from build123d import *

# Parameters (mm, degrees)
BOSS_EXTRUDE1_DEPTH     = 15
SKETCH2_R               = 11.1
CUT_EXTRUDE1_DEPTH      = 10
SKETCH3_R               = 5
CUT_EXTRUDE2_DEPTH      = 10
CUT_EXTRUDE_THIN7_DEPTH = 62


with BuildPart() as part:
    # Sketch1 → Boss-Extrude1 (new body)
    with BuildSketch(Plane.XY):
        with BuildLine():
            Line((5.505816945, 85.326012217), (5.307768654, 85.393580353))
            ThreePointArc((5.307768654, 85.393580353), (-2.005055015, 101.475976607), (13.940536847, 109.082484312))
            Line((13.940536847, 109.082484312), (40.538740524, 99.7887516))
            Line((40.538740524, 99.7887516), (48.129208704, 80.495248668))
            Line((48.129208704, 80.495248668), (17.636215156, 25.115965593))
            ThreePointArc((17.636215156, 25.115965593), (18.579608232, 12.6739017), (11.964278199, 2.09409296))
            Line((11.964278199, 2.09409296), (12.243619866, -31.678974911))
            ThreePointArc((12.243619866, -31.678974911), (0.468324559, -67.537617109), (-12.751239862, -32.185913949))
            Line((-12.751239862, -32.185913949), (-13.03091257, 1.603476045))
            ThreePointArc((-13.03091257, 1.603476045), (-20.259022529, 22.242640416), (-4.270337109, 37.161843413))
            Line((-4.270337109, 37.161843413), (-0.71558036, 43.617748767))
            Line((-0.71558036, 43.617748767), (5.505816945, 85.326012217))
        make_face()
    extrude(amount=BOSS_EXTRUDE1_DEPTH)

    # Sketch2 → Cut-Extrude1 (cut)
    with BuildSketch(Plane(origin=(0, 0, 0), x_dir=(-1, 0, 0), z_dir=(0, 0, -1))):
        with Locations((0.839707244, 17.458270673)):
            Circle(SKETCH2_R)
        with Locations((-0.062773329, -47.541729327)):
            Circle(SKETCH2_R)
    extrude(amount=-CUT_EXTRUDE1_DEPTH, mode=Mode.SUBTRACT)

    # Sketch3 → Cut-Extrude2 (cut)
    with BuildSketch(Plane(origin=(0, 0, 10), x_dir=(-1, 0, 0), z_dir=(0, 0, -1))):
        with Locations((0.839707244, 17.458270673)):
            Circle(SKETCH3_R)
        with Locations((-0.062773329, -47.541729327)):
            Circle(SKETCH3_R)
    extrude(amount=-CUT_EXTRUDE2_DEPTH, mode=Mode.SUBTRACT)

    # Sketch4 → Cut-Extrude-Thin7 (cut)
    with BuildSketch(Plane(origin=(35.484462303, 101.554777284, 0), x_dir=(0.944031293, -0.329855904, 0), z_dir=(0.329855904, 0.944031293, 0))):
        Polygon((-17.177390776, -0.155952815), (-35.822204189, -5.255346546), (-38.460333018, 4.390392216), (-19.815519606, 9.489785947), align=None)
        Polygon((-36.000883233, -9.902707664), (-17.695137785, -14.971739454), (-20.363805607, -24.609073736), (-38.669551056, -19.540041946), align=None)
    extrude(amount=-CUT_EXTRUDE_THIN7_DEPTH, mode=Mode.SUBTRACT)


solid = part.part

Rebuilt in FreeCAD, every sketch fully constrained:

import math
import FreeCAD as App
import Part
import Sketcher
from FreeCAD import Vector
Q = App.Units.Quantity


def add_polygon(sketch, points):
    """Adds a closed chain of lines whose ends are joined by coincident constraints."""
    first, n = sketch.GeometryCount, len(points)
    for a, b in zip(points, points[1:] + points[:1]):
        sketch.addGeometry(Part.LineSegment(App.Vector(*a, 0), App.Vector(*b, 0)), False)
    for i in range(n):
        sketch.addConstraint(Sketcher.Constraint("Coincident", first + i, 2, first + (i + 1) % n, 1))

doc = App.newDocument("Part")
body = doc.addObject("PartDesign::Body", "Body")

# Sketch on XY plane
sketch1 = body.newObject("Sketcher::SketchObject", "Sketch")
sketch1.AttachmentSupport = (doc.getObject("XY_Plane"), [""])
sketch1.MapMode = "FlatFace"
sketch1.addGeometry(Part.LineSegment(Vector(5.31, 85.39, 0), Vector(5.51, 85.33, 0)), False)
sketch1.addGeometry(Part.LineSegment(Vector(5.51, 85.33, 0), Vector(-0.72, 43.62, 0)), False)
sketch1.addGeometry(Part.LineSegment(Vector(-0.72, 43.62, 0), Vector(-4.27, 37.16, 0)), False)
sketch1.addGeometry(Part.ArcOfCircle(Part.Circle(Vector(-0.84, 17.46, 0), Vector(0, 0, 1), 20), math.radians(100), math.radians(232)), False)
sketch1.addGeometry(Part.LineSegment(Vector(-13.03, 1.6, 0), Vector(-12.75, -32.19, 0)), False)
sketch1.addGeometry(Part.ArcOfCircle(Part.Circle(Vector(0.06, -47.54, 0), Vector(0, 0, 1), 20), math.radians(130), math.radians(412)), False)
sketch1.addGeometry(Part.LineSegment(Vector(12.24, -31.68, 0), Vector(11.96, 2.09, 0)), False)
sketch1.addGeometry(Part.ArcOfCircle(Part.Circle(Vector(-0.84, 17.46, 0), Vector(0, 0, 1), 20), math.radians(-50), math.radians(23)), False)
sketch1.addGeometry(Part.LineSegment(Vector(17.64, 25.12, 0), Vector(48.13, 80.5, 0)), False)
sketch1.addGeometry(Part.LineSegment(Vector(48.13, 80.5, 0), Vector(40.54, 99.79, 0)), False)
sketch1.addGeometry(Part.LineSegment(Vector(40.54, 99.79, 0), Vector(13.94, 109.08, 0)), False)
sketch1.addGeometry(Part.ArcOfCircle(Part.Circle(Vector(9.84, 97.16, 0), Vector(0, 0, 1), 12.61), math.radians(71), math.radians(249)), False)
sketch1.addConstraint(Sketcher.Constraint("Coincident", 0, 2, 1, 1))
sketch1.addConstraint(Sketcher.Constraint("Coincident", 1, 2, 2, 1))
sketch1.addConstraint(Sketcher.Constraint("Coincident", 2, 2, 3, 1))
sketch1.addConstraint(Sketcher.Constraint("Coincident", 3, 2, 4, 1))
sketch1.addConstraint(Sketcher.Constraint("Coincident", 4, 2, 5, 1))
sketch1.addConstraint(Sketcher.Constraint("Coincident", 5, 2, 6, 1))
sketch1.addConstraint(Sketcher.Constraint("Coincident", 6, 2, 7, 1))
sketch1.addConstraint(Sketcher.Constraint("Coincident", 7, 2, 8, 1))
sketch1.addConstraint(Sketcher.Constraint("Coincident", 8, 2, 9, 1))
sketch1.addConstraint(Sketcher.Constraint("Coincident", 9, 2, 10, 1))
sketch1.addConstraint(Sketcher.Constraint("Coincident", 10, 2, 11, 1))
sketch1.addConstraint(Sketcher.Constraint("Coincident", 11, 2, 0, 1))
sketch1.addConstraint(Sketcher.Constraint("Coincident", 7, 3, 3, 3))
sketch1.addConstraint(Sketcher.Constraint("Equal", 3, 5))
sketch1.addConstraint(Sketcher.Constraint("Equal", 5, 7))
sketch1.addConstraint(Sketcher.Constraint("Parallel", 2, 8))
sketch1.addConstraint(Sketcher.Constraint("Radius", 3, Q("20 mm")))
sketch1.addConstraint(Sketcher.Constraint("DistanceY", 5, 3, 3, 3, Q("65 mm")))
sketch1.addConstraint(Sketcher.Constraint("Radius", 11, Q("12.608556 mm")))
sketch1.addConstraint(Sketcher.Constraint("DistanceY", 1, 2, 8, 2, Q("36.8775 mm")))
sketch1.addConstraint(Sketcher.Constraint("Distance", 2, Q("7.369872 mm")))
sketch1.addConstraint(Sketcher.Constraint("Distance", 8, Q("63.219361 mm")))
sketch1.addConstraint(Sketcher.Constraint("Distance", 9, Q("20.732932 mm")))
sketch1.addConstraint(Sketcher.Constraint("Distance", 10, Q("28.175129 mm")))
sketch1.addConstraint(Sketcher.Constraint("DistanceY", -1, 1, 3, 3, Q("17.458271 mm")))
sketch1.addConstraint(Sketcher.Constraint("DistanceX", -1, 1, 11, 3, Q("9.841389 mm")))
sketch1.addConstraint(Sketcher.Constraint("DistanceX", 1, 2, -1, 1, Q("0.71558 mm")))
sketch1.addConstraint(Sketcher.Constraint("DistanceY", -1, 1, 1, 2, Q("43.617749 mm")))
sketch1.addConstraint(Sketcher.Constraint("DistanceX", 4, 2, -1, 1, Q("12.75124 mm")))
sketch1.addConstraint(Sketcher.Constraint("DistanceX", -1, 1, 5, 2, Q("12.24362 mm")))
sketch1.addConstraint(Sketcher.Constraint("DistanceX", -1, 1, 6, 2, Q("11.964278 mm")))
sketch1.addConstraint(Sketcher.Constraint("DistanceX", -1, 1, 8, 2, Q("48.129209 mm")))
sketch1.addConstraint(Sketcher.Constraint("DistanceX", -1, 1, 9, 2, Q("40.538741 mm")))
sketch1.addConstraint(Sketcher.Constraint("DistanceX", -1, 1, 11, 2, Q("5.307769 mm")))
sketch1.addConstraint(Sketcher.Constraint("DistanceY", -1, 1, 11, 2, Q("85.39358 mm")))
sketch1.addConstraint(Sketcher.Constraint("DistanceX", 3, 3, 5, 3, Q("0.902481 mm")))
sketch1.addConstraint(Sketcher.Constraint("DistanceX", 0, 2, 11, 3, Q("4.335572 mm")))
sketch1.addConstraint(Sketcher.Constraint("DistanceY", 3, 3, 0, 2, Q("67.867742 mm")))
sketch1.addConstraint(Sketcher.Constraint("DistanceY", 4, 2, 3, 2, Q("33.78939 mm")))
pad1 = body.newObject("PartDesign::Pad", "Pad")
pad1.Profile = sketch1
pad1.Length = 15

# Sketch on XY plane
sketch2 = body.newObject("Sketcher::SketchObject", "Sketch001")
sketch2.AttachmentSupport = (doc.getObject("XY_Plane"), [""])
sketch2.MapMode = "FlatFace"
sketch2.addGeometry(Part.Circle(Vector(-1, 17, 0), Vector(0, 0, 1), 11), False)
sketch2.addGeometry(Part.Circle(Vector(0, -48, 0), Vector(0, 0, 1), 11), False)
sketch2.addConstraint(Sketcher.Constraint("Equal", 0, 1))
sketch2.addConstraint(Sketcher.Constraint("Diameter", 0, Q("22.2 mm")))
sketch2.addConstraint(Sketcher.Constraint("DistanceY", 1, 3, 0, 3, Q("65 mm")))
sketch2.addConstraint(Sketcher.Constraint("DistanceY", -1, 1, 0, 3, Q("17.458271 mm")))
sketch2.addConstraint(Sketcher.Constraint("DistanceX", 0, 3, 1, 3, Q("0.902481 mm")))
sketch2.addConstraint(Sketcher.Constraint("DistanceX", 0, 3, -1, 1, Q("0.839707 mm")))
pocket1 = body.newObject("PartDesign::Pocket", "Pocket")
pocket1.Profile = sketch2
pocket1.Length = 10
pocket1.Reversed = True

# Sketch on XY plane
sketch3 = body.newObject("Sketcher::SketchObject", "Sketch002")
sketch3.AttachmentSupport = (doc.getObject("XY_Plane"), [""])
sketch3.MapMode = "FlatFace"
sketch3.AttachmentOffset = App.Placement(Vector(0, 0, 10), App.Rotation())
sketch3.addGeometry(Part.Circle(Vector(-1, 17, 0), Vector(0, 0, 1), 5), False)
sketch3.addGeometry(Part.Circle(Vector(0, -48, 0), Vector(0, 0, 1), 5), False)
sketch3.addConstraint(Sketcher.Constraint("Equal", 0, 1))
sketch3.addConstraint(Sketcher.Constraint("Diameter", 0, Q("10 mm")))
sketch3.addConstraint(Sketcher.Constraint("DistanceY", 1, 3, 0, 3, Q("65 mm")))
sketch3.addConstraint(Sketcher.Constraint("DistanceY", -1, 1, 0, 3, Q("17.458271 mm")))
sketch3.addConstraint(Sketcher.Constraint("DistanceX", 0, 3, 1, 3, Q("0.902481 mm")))
sketch3.addConstraint(Sketcher.Constraint("DistanceX", 0, 3, -1, 1, Q("0.839707 mm")))
pocket2 = body.newObject("PartDesign::Pocket", "Pocket001")
pocket2.Profile = sketch3
pocket2.Length = 10
pocket2.Reversed = True

# Sketch on an angled plane
sketch4 = body.newObject("Sketcher::SketchObject", "Sketch003")
sketch4.Placement = App.Placement(Vector(35.484462, 101.554777, 0), App.Rotation(Vector(0.944031293, -0.329855904, 0), Vector(0, 0, -1), Vector(0.329855904, 0.944031293, 0), "ZXY"))
add_polygon(sketch4, [(-36, -5), (-17, 0), (-20, 9), (-38, 4)])  # lines 0-3
add_polygon(sketch4, [(-18, -15), (-36, -10), (-39, -20), (-20, -25)])  # lines 4-7
sketch4.addConstraint(Sketcher.Constraint("Perpendicular", 0, 1))
sketch4.addConstraint(Sketcher.Constraint("Perpendicular", 1, 2))
sketch4.addConstraint(Sketcher.Constraint("Perpendicular", 2, 3))
sketch4.addConstraint(Sketcher.Constraint("Perpendicular", 4, 5))
sketch4.addConstraint(Sketcher.Constraint("Perpendicular", 5, 6))
sketch4.addConstraint(Sketcher.Constraint("Perpendicular", 6, 7))
sketch4.addConstraint(Sketcher.Constraint("Equal", 3, 5))
sketch4.addConstraint(Sketcher.Constraint("Distance", 1, Q("10 mm")))
sketch4.addConstraint(Sketcher.Constraint("DistanceY", 4, 2, 2, 2, Q("14.2931 mm")))
sketch4.addConstraint(Sketcher.Constraint("DistanceX", 3, 2, 6, 2, Q("15.458399 mm")))
sketch4.addConstraint(Sketcher.Constraint("DistanceX", 0, 2, -1, 1, Q("17.177391 mm")))
sketch4.addConstraint(Sketcher.Constraint("DistanceX", 1, 2, -1, 1, Q("19.81552 mm")))
sketch4.addConstraint(Sketcher.Constraint("DistanceX", 5, 2, -1, 1, Q("38.669551 mm")))
sketch4.addConstraint(Sketcher.Constraint("DistanceY", 5, 2, -1, 1, Q("19.540042 mm")))
sketch4.addConstraint(Sketcher.Constraint("DistanceY", 7, 2, -1, 1, Q("14.971739 mm")))
sketch4.addConstraint(Sketcher.Constraint("DistanceX", 4, 2, 3, 2, Q("0.178679 mm")))
pocket3 = body.newObject("PartDesign::Pocket", "Pocket002")
pocket3.Profile = sketch4
pocket3.Length = 62

doc.recompute()
